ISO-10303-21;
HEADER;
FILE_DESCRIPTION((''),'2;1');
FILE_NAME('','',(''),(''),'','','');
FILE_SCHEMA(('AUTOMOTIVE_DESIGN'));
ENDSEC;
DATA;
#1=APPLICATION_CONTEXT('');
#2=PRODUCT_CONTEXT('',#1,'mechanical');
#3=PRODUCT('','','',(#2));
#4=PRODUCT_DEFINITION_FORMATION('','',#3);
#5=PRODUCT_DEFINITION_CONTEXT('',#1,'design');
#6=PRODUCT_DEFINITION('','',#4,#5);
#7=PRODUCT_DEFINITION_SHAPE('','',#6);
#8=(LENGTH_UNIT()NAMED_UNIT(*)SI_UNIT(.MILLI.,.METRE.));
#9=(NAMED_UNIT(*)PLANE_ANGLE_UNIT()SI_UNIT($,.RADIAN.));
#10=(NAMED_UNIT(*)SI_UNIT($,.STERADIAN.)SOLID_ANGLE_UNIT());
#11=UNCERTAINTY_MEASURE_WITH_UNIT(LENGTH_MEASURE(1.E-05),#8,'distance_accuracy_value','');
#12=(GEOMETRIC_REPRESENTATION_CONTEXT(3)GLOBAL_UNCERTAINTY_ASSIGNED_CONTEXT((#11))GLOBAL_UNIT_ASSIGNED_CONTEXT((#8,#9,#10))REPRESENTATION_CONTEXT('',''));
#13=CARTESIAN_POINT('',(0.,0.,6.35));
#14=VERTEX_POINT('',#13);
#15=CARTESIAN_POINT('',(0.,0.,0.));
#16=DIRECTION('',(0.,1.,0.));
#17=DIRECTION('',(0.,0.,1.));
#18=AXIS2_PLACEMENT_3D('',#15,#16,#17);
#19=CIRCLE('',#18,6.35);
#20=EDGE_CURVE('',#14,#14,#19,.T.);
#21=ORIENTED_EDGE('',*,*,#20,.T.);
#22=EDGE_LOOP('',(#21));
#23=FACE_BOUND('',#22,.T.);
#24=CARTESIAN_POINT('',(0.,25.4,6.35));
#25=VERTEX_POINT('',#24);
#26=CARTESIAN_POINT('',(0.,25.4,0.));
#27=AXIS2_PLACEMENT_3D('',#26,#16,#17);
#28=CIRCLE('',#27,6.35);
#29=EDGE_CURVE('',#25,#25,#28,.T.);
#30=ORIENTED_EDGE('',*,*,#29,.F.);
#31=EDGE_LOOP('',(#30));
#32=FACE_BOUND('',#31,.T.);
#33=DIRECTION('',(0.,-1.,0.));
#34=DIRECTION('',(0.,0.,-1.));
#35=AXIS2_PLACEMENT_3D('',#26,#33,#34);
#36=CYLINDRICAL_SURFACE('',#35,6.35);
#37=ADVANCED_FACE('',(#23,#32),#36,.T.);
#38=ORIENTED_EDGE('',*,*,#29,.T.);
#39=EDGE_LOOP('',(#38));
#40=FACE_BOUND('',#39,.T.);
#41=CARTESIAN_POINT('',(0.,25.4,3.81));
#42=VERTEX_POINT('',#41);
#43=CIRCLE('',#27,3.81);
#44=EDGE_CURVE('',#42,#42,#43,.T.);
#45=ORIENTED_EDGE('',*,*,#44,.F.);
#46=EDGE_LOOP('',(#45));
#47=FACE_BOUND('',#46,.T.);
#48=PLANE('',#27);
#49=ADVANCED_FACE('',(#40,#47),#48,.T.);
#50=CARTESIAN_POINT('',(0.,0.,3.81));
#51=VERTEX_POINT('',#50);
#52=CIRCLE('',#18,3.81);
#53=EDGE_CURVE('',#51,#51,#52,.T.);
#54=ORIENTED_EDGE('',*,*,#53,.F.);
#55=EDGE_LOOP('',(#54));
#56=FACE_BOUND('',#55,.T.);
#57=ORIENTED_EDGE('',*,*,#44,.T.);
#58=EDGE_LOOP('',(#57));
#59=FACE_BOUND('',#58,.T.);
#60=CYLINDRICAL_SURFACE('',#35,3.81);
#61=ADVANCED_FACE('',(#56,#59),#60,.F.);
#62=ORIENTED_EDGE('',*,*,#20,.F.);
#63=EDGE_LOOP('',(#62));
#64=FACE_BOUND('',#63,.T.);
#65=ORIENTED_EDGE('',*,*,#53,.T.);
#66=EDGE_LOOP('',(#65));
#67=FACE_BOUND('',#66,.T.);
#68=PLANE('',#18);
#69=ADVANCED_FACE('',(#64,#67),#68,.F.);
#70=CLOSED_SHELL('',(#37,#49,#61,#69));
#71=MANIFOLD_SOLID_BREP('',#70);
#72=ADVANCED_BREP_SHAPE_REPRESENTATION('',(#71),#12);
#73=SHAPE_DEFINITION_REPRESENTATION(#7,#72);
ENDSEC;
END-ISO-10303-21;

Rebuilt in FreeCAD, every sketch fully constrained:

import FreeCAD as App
import Part
import Sketcher
Q = App.Units.Quantity

doc = App.newDocument("Part")
body = doc.addObject("PartDesign::Body", "Body")

# Sketch on XZ plane
sketch1 = body.newObject("Sketcher::SketchObject", "Sketch")
sketch1.AttachmentSupport = (doc.getObject("XZ_Plane"), [""])
sketch1.MapMode = "FlatFace"
sketch1.addGeometry([
    Part.Circle(App.Vector(0, 0, 0), App.Vector(0, 0, 1), 6.35),
    Part.Circle(App.Vector(0, 0, 0), App.Vector(0, 0, 1), 3.81),
], False)
sketch1.addConstraint([
    Sketcher.Constraint("Coincident", 0, 3, -1, 1),
    Sketcher.Constraint("Coincident", 1, 3, -1, 1),
    Sketcher.Constraint("Diameter", 0, Q("0.5 in")),
    Sketcher.Constraint("Diameter", 1, Q("0.3 in")),
])
pad1 = body.newObject("PartDesign::Pad", "Pad")
pad1.Profile = sketch1
pad1.Length = Q("1 in")
pad1.Reversed = True

doc.recompute()
